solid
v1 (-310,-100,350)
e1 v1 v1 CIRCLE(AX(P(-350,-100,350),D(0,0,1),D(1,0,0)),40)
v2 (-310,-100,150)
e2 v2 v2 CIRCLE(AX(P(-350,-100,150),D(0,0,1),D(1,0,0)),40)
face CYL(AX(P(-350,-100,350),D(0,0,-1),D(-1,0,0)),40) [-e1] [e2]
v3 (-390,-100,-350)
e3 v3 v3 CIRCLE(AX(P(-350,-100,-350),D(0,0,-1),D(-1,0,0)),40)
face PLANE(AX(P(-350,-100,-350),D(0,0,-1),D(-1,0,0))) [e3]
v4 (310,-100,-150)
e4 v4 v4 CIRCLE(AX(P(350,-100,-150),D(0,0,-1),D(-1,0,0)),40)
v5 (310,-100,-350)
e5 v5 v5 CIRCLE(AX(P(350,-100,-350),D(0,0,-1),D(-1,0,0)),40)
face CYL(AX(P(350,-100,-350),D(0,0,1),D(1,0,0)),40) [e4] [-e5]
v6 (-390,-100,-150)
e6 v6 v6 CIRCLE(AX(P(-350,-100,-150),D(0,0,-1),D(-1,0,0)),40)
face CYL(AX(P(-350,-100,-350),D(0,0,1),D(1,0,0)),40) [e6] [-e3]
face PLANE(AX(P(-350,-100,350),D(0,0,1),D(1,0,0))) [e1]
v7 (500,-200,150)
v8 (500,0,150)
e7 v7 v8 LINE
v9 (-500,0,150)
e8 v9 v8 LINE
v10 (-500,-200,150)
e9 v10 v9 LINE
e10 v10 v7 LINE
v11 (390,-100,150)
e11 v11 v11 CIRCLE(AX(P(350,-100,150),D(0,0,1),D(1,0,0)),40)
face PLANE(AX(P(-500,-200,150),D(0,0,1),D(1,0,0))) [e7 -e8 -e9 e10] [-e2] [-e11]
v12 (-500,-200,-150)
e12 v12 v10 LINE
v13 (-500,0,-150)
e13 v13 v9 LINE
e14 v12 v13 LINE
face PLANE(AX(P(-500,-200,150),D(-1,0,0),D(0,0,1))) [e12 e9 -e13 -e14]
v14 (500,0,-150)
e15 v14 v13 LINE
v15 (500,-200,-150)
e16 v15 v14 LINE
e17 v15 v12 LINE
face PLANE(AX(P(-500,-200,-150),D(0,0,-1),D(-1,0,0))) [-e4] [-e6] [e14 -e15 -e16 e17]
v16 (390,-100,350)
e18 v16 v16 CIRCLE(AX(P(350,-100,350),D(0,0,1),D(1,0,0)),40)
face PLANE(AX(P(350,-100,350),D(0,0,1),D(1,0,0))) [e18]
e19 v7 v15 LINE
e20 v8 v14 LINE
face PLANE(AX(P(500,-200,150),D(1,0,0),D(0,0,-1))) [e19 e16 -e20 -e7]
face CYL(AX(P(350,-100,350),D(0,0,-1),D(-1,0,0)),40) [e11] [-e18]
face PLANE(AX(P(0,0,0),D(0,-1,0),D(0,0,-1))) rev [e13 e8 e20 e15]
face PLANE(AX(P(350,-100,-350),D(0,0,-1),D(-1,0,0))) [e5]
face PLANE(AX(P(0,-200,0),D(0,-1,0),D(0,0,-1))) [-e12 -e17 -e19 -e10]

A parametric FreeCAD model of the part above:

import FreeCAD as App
import Part
import Sketcher

V = App.Vector


def add_polygon(sketch, points):
    """Adds a closed chain of lines whose ends are joined by coincident constraints."""
    first, n = sketch.GeometryCount, len(points)
    for a, b in zip(points, points[1:] + points[:1]):
        sketch.addGeometry(Part.LineSegment(App.Vector(*a, 0), App.Vector(*b, 0)), False)
    for i in range(n):
        sketch.addConstraint(Sketcher.Constraint("Coincident", first + i, 2, first + (i + 1) % n, 1))

doc = App.newDocument("Part")
body = doc.addObject("PartDesign::Body", "Body")

sketch1 = body.newObject("Sketcher::SketchObject", "Sketch")
sketch1.AttachmentSupport = (doc.getObject("XZ_Plane"), [""])
sketch1.MapMode = "FlatFace"
add_polygon(sketch1, [(-500, -150), (-500, 150), (500, 150), (500, -150)])
sketch1.addConstraint([
    Sketcher.Constraint("Vertical", 0),
    Sketcher.Constraint("Horizontal", 1),
    Sketcher.Constraint("Vertical", 2),
    Sketcher.Constraint("Horizontal", 3),
    Sketcher.Constraint("Symmetric", 0, 2, 2, 2, -1, 1),
    Sketcher.Constraint("DistanceX", 1, 1, 1, 2, 1000.0),
    Sketcher.Constraint("DistanceY", 0, 1, 0, 2, 300.0),
])
pad1 = body.newObject("PartDesign::Pad", "Pad")
pad1.Profile = sketch1
pad1.Length = 200

sketch2 = body.newObject("Sketcher::SketchObject", "Sketch001")
sketch2.AttachmentSupport = (doc.getObject("XY_Plane"), [""])
sketch2.MapMode = "FlatFace"
sketch2.AttachmentOffset = App.Placement(V(0, 0, 150), App.Rotation())
sketch2.addGeometry([
    Part.Circle(V(-350, -100, 0), V(0, 0, 1), 40),
    Part.Circle(V(350, -100, 0), V(0, 0, 1), 40),
], False)
sketch2.addConstraint([
    Sketcher.Constraint("Equal", 0, 1),
    Sketcher.Constraint("Symmetric", 0, 3, 1, 3, -2),
    Sketcher.Constraint("Diameter", 0, 80.0),
    Sketcher.Constraint("DistanceX", 0, 3, -1, 1, 350.0),
    Sketcher.Constraint("DistanceY", 0, 3, -1, 1, 100.0),
])
pad2 = body.newObject("PartDesign::Pad", "Pad001")
pad2.Profile = sketch2
pad2.Length = 200

sketch3 = body.newObject("Sketcher::SketchObject", "Sketch002")
sketch3.AttachmentSupport = (doc.getObject("XY_Plane"), [""])
sketch3.MapMode = "FlatFace"
sketch3.AttachmentOffset = App.Placement(V(0, 0, -350), App.Rotation())
sketch3.addGeometry([
    Part.Circle(V(350, -100, 0), V(0, 0, 1), 40),
    Part.Circle(V(-350, -100, 0), V(0, 0, 1), 40),
], False)
sketch3.addConstraint([
    Sketcher.Constraint("Equal", 0, 1),
    Sketcher.Constraint("Symmetric", 0, 3, 1, 3, -2),
    Sketcher.Constraint("Diameter", 0, 80.0),
    Sketcher.Constraint("DistanceX", -1, 1, 0, 3, 350.0),
    Sketcher.Constraint("DistanceY", 0, 3, -1, 1, 100.0),
])
pad3 = body.newObject("PartDesign::Pad", "Pad002")
pad3.Profile = sketch3
pad3.Length = 200

doc.recompute()
